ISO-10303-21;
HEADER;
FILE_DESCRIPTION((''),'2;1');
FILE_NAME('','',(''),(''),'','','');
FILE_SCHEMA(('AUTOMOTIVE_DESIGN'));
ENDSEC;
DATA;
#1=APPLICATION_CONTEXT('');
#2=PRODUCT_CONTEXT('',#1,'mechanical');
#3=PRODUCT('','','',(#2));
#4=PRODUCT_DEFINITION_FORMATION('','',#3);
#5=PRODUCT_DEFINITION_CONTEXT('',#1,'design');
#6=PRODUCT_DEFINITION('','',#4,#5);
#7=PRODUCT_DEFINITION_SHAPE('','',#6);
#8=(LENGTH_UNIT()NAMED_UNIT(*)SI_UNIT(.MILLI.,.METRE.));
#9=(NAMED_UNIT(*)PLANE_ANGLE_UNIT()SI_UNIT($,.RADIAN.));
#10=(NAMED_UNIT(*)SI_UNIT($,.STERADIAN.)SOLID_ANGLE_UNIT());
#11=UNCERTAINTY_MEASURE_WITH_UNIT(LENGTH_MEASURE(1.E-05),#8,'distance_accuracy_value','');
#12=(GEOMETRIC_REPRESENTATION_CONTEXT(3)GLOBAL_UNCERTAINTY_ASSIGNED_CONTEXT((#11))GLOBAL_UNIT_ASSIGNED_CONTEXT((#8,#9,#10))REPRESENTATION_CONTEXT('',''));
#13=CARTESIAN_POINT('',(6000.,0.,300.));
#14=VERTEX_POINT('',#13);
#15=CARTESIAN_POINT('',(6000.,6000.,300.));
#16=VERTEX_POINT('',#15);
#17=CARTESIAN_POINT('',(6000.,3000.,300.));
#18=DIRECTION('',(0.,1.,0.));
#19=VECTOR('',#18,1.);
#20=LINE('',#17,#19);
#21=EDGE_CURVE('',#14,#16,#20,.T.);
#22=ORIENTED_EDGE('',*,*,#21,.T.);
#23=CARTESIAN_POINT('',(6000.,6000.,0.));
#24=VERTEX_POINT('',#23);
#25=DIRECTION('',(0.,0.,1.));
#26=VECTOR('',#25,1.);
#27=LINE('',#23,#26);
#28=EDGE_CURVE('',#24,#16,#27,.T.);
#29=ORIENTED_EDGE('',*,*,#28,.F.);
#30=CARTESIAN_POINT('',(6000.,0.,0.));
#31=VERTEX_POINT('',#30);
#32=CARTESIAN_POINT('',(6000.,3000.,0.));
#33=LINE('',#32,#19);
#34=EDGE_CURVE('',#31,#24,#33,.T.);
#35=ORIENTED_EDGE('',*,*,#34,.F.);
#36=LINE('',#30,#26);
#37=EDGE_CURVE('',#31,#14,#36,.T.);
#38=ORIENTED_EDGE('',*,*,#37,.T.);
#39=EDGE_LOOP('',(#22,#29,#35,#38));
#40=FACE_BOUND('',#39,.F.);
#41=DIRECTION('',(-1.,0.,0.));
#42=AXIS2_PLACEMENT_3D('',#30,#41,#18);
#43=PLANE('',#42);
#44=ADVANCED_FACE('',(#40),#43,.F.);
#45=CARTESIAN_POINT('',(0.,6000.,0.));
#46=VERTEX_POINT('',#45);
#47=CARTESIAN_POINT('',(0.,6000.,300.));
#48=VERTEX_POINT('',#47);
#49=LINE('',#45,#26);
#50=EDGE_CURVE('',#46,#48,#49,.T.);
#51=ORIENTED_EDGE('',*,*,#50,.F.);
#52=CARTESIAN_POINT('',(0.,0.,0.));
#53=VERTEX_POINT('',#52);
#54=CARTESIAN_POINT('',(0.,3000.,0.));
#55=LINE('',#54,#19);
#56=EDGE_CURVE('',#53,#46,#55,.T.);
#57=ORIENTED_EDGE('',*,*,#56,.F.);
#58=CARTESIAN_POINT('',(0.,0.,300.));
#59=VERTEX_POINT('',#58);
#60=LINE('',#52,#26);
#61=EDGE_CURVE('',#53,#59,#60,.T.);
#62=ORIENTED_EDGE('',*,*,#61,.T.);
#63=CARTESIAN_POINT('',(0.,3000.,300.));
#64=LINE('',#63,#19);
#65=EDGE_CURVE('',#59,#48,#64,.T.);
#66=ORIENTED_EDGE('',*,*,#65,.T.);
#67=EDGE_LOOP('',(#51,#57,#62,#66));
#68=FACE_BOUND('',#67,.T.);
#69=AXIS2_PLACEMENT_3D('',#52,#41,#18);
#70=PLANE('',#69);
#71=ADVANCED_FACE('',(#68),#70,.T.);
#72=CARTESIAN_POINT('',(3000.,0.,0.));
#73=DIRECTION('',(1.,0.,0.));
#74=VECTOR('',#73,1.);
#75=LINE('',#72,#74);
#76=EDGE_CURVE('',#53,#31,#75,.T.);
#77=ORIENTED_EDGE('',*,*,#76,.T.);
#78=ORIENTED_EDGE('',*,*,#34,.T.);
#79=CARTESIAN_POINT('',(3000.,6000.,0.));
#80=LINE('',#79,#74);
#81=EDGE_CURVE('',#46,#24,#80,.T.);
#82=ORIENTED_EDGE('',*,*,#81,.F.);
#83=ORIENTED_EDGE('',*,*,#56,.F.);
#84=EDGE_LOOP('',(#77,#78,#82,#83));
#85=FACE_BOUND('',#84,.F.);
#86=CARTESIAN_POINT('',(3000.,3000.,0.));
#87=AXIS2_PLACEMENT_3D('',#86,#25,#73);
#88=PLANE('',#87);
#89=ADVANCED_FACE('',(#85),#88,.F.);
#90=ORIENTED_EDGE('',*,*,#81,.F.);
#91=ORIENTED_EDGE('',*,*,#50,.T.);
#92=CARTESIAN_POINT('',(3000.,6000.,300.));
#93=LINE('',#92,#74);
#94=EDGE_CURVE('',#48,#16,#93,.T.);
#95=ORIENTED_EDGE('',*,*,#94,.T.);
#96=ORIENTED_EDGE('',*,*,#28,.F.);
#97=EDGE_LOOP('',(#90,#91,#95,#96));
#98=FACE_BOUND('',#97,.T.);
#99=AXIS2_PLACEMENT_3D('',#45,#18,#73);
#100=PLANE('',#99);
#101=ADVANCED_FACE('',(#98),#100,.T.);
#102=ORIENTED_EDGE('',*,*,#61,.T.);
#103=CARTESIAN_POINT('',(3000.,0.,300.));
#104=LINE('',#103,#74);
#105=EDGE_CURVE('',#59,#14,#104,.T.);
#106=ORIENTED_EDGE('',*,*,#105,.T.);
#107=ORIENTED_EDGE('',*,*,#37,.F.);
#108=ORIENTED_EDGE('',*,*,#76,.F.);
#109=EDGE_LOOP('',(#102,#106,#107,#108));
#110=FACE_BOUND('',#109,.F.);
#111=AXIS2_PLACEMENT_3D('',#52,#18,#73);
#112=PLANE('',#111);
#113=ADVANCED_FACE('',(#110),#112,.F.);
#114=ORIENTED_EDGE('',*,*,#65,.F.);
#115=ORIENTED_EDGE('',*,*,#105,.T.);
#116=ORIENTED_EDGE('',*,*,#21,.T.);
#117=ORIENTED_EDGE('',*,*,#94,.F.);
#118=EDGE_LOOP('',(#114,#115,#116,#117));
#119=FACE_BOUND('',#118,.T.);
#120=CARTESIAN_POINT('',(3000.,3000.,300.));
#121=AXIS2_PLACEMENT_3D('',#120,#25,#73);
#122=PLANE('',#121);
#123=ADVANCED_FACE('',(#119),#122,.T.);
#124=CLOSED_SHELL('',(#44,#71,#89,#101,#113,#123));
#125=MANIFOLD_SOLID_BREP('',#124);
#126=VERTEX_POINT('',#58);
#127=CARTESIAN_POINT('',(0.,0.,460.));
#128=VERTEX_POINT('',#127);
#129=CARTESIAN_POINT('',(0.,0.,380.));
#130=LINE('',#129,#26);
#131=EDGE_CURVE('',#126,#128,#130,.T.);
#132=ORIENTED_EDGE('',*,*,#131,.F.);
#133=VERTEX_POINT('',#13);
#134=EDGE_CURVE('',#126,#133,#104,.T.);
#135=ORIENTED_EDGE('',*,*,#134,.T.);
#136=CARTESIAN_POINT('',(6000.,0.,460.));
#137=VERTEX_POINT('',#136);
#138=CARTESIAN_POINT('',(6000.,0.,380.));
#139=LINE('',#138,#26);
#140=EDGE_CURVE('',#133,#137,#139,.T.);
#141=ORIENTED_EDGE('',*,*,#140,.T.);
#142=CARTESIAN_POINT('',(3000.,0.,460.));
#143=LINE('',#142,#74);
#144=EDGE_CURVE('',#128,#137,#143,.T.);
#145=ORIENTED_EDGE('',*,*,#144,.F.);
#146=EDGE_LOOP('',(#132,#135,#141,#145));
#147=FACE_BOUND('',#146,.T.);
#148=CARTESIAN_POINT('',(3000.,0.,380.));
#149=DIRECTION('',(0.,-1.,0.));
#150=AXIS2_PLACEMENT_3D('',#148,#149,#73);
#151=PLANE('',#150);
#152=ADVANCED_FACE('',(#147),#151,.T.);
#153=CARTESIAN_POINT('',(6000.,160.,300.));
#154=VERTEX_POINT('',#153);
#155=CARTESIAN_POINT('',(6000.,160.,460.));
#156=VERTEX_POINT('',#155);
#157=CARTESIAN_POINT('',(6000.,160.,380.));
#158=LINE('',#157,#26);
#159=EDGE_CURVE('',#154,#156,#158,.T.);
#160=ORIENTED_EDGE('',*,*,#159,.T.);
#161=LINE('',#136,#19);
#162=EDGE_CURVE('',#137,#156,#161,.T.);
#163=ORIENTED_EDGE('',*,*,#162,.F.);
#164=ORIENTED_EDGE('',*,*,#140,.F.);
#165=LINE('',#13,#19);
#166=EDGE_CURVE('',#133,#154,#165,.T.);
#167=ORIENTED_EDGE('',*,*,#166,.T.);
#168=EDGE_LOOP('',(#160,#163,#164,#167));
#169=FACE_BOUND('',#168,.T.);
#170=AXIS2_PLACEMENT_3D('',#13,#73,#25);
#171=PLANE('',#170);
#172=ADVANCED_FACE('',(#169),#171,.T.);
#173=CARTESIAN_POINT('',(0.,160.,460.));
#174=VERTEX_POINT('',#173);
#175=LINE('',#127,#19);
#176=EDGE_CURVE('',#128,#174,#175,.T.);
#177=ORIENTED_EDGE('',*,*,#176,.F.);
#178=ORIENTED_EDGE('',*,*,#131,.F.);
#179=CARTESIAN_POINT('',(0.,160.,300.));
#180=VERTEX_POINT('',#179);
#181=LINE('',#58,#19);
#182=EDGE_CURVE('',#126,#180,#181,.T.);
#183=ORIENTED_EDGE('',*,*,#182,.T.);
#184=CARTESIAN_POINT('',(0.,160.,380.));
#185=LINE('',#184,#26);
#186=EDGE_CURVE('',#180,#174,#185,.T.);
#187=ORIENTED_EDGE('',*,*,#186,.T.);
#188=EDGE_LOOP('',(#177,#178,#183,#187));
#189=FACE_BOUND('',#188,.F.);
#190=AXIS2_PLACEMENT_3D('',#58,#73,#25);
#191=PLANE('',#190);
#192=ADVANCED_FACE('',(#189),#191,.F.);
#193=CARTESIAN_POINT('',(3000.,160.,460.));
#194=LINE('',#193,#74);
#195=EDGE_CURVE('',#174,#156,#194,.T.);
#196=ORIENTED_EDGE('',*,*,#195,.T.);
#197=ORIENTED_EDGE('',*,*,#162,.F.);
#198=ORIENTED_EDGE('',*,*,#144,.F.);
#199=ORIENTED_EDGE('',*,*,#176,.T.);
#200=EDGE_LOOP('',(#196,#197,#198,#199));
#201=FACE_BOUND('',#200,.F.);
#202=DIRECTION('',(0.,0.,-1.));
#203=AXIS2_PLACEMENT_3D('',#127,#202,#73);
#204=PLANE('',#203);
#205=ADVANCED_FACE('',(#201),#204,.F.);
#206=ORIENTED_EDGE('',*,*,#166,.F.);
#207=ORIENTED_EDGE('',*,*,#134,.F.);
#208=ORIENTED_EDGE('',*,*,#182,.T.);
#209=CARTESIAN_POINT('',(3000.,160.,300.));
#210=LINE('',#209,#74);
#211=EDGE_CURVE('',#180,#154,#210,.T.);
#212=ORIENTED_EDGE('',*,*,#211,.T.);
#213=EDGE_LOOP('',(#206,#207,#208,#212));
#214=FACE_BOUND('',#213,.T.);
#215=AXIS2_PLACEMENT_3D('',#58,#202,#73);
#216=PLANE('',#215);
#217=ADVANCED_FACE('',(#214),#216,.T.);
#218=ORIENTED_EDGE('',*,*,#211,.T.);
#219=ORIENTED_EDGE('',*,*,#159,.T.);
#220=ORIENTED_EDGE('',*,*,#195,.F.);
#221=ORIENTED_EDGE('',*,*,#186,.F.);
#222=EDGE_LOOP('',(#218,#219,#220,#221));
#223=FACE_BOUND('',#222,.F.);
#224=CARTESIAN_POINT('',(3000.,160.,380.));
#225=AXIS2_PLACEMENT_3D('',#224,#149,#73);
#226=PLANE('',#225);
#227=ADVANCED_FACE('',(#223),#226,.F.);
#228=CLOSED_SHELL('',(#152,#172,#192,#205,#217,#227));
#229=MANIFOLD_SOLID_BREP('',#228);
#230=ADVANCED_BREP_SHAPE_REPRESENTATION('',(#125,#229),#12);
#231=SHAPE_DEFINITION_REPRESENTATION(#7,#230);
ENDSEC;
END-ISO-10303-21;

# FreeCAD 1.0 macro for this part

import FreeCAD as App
import Part
import Sketcher

doc = App.newDocument("Part")
body = doc.addObject("PartDesign::Body", "Body")

# Sketch on XY plane
sketch1 = body.newObject("Sketcher::SketchObject", "Sketch")
sketch1.AttachmentSupport = (doc.getObject("XY_Plane"), [""])
sketch1.MapMode = "FlatFace"
sketch1.addGeometry(Part.LineSegment(App.Vector(0, 6000, 0), App.Vector(0, 0, 0)), False)
sketch1.addGeometry(Part.LineSegment(App.Vector(0, 0, 0), App.Vector(6000, 0, 0)), False)
sketch1.addGeometry(Part.LineSegment(App.Vector(6000, 0, 0), App.Vector(6000, 6000, 0)), False)
sketch1.addGeometry(Part.LineSegment(App.Vector(6000, 6000, 0), App.Vector(0, 6000, 0)), False)
sketch1.addConstraint(Sketcher.Constraint("Coincident", 0, 2, 1, 1))
sketch1.addConstraint(Sketcher.Constraint("Coincident", 1, 2, 2, 1))
sketch1.addConstraint(Sketcher.Constraint("Coincident", 2, 2, 3, 1))
sketch1.addConstraint(Sketcher.Constraint("Coincident", 3, 2, 0, 1))
sketch1.addConstraint(Sketcher.Constraint("Vertical", 0))
sketch1.addConstraint(Sketcher.Constraint("Horizontal", 1))
sketch1.addConstraint(Sketcher.Constraint("Vertical", 2))
sketch1.addConstraint(Sketcher.Constraint("Horizontal", 3))
sketch1.addConstraint(Sketcher.Constraint("Coincident", 0, 2, -1, 1))
sketch1.addConstraint(Sketcher.Constraint("Equal", 3, 0))
sketch1.addConstraint(Sketcher.Constraint("DistanceX", 1, 1, 1, 2, 6000.0))
pad1 = body.newObject("PartDesign::Pad", "Pad")
pad1.Profile = sketch1
pad1.Length = 300
body2 = doc.addObject("PartDesign::Body", "Body001")

# Sketch on XZ plane
sketch2 = body2.newObject("Sketcher::SketchObject", "Sketch001")
sketch2.AttachmentSupport = (doc.getObject("XZ_Plane001"), [""])
sketch2.MapMode = "FlatFace"
sketch2.addGeometry(Part.LineSegment(App.Vector(0, 460, 0), App.Vector(0, 300, 0)), False)
sketch2.addGeometry(Part.LineSegment(App.Vector(0, 300, 0), App.Vector(6000, 300, 0)), False)
sketch2.addGeometry(Part.LineSegment(App.Vector(6000, 300, 0), App.Vector(6000, 460, 0)), False)
sketch2.addGeometry(Part.LineSegment(App.Vector(6000, 460, 0), App.Vector(0, 460, 0)), False)
sketch2.addConstraint(Sketcher.Constraint("Coincident", 0, 2, 1, 1))
sketch2.addConstraint(Sketcher.Constraint("Coincident", 1, 2, 2, 1))
sketch2.addConstraint(Sketcher.Constraint("Coincident", 2, 2, 3, 1))
sketch2.addConstraint(Sketcher.Constraint("Coincident", 3, 2, 0, 1))
sketch2.addConstraint(Sketcher.Constraint("Vertical", 0))
sketch2.addConstraint(Sketcher.Constraint("Horizontal", 1))
sketch2.addConstraint(Sketcher.Constraint("Vertical", 2))
sketch2.addConstraint(Sketcher.Constraint("Horizontal", 3))
sketch2.addConstraint(Sketcher.Constraint("PointOnObject", 0, 2, -2))
sketch2.addConstraint(Sketcher.Constraint("DistanceX", 1, 1, 1, 2, 6000.0))
sketch2.addConstraint(Sketcher.Constraint("DistanceY", 0, 2, 0, 1, 160.0))
sketch2.addConstraint(Sketcher.Constraint("DistanceY", -1, 1, 0, 2, 300.0))
pad2 = body2.newObject("PartDesign::Pad", "Pad001")
pad2.Profile = sketch2
pad2.Length = 160
pad2.Reversed = True

doc.recompute()
